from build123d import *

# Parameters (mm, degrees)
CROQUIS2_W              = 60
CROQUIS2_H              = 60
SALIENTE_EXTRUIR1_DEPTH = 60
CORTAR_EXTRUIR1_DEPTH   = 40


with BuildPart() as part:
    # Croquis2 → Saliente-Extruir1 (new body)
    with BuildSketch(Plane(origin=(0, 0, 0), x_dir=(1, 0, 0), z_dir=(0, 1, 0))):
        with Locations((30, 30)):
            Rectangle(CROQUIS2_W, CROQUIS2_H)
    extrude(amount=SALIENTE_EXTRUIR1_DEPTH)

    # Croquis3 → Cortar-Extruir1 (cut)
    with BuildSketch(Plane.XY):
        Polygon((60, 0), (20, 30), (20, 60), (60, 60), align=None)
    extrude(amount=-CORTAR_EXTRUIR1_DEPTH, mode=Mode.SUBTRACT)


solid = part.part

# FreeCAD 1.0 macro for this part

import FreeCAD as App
import Part
import Sketcher
from FreeCAD import Vector
Q = App.Units.Quantity

doc = App.newDocument("Part")
body = doc.addObject("PartDesign::Body", "Body")

# Sketch on XZ plane
sketch1 = doc.addObject("Sketcher::SketchObject", "Sketch")
body.addObject(sketch1)
sketch1.AttachmentSupport = (doc.XZ_Plane, [""])
sketch1.MapMode = "FlatFace"
sketch1.addGeometry(Part.LineSegment(Vector(0, -60, 0), Vector(0, 0, 0)), False)
sketch1.addGeometry(Part.LineSegment(Vector(0, 0, 0), Vector(60, 0, 0)), False)
sketch1.addGeometry(Part.LineSegment(Vector(60, 0, 0), Vector(60, -60, 0)), False)
sketch1.addGeometry(Part.LineSegment(Vector(60, -60, 0), Vector(0, -60, 0)), False)
sketch1.addConstraint(Sketcher.Constraint("Coincident", 0, 2, 1, 1))
sketch1.addConstraint(Sketcher.Constraint("Coincident", 1, 2, 2, 1))
sketch1.addConstraint(Sketcher.Constraint("Coincident", 2, 2, 3, 1))
sketch1.addConstraint(Sketcher.Constraint("Coincident", 3, 2, 0, 1))
sketch1.addConstraint(Sketcher.Constraint("Vertical", 0))
sketch1.addConstraint(Sketcher.Constraint("Horizontal", 1))
sketch1.addConstraint(Sketcher.Constraint("Vertical", 2))
sketch1.addConstraint(Sketcher.Constraint("Horizontal", 3))
sketch1.addConstraint(Sketcher.Constraint("Coincident", 0, 2, -1, 1))
sketch1.addConstraint(Sketcher.Constraint("Equal", 3, 0))
sketch1.addConstraint(Sketcher.Constraint("DistanceX", 1, 1, 1, 2, Q("60 mm")))
pad1 = doc.addObject("PartDesign::Pad", "Pad")
body.addObject(pad1)
pad1.Profile = sketch1
pad1.Length = 60
pad1.Reversed = True

# Sketch on XY plane
sketch2 = doc.addObject("Sketcher::SketchObject", "Sketch001")
body.addObject(sketch2)
sketch2.AttachmentSupport = (doc.XY_Plane, [""])
sketch2.MapMode = "FlatFace"
sketch2.addGeometry(Part.LineSegment(Vector(20, 30, 0), Vector(60, 0, 0)), False)
sketch2.addGeometry(Part.LineSegment(Vector(60, 0, 0), Vector(60, 60, 0)), False)
sketch2.addGeometry(Part.LineSegment(Vector(60, 60, 0), Vector(20, 60, 0)), False)
sketch2.addGeometry(Part.LineSegment(Vector(20, 60, 0), Vector(20, 30, 0)), False)
sketch2.addConstraint(Sketcher.Constraint("Coincident", 0, 2, 1, 1))
sketch2.addConstraint(Sketcher.Constraint("Coincident", 1, 2, 2, 1))
sketch2.addConstraint(Sketcher.Constraint("Coincident", 2, 2, 3, 1))
sketch2.addConstraint(Sketcher.Constraint("Coincident", 3, 2, 0, 1))
sketch2.addConstraint(Sketcher.Constraint("Vertical", 1))
sketch2.addConstraint(Sketcher.Constraint("Horizontal", 2))
sketch2.addConstraint(Sketcher.Constraint("Vertical", 3))
sketch2.addConstraint(Sketcher.Constraint("PointOnObject", 0, 2, -1))
sketch2.addConstraint(Sketcher.Constraint("DistanceX", 2, 2, 2, 1, Q("40 mm")))
sketch2.addConstraint(Sketcher.Constraint("DistanceY", 1, 1, 1, 2, Q("60 mm")))
sketch2.addConstraint(Sketcher.Constraint("DistanceY", 3, 2, 3, 1, Q("30 mm")))
sketch2.addConstraint(Sketcher.Constraint("DistanceX", -1, 1, 0, 2, Q("60 mm")))
pocket1 = doc.addObject("PartDesign::Pocket", "Pocket")
body.addObject(pocket1)
pocket1.Profile = sketch2
pocket1.Length = 40

doc.recompute()
